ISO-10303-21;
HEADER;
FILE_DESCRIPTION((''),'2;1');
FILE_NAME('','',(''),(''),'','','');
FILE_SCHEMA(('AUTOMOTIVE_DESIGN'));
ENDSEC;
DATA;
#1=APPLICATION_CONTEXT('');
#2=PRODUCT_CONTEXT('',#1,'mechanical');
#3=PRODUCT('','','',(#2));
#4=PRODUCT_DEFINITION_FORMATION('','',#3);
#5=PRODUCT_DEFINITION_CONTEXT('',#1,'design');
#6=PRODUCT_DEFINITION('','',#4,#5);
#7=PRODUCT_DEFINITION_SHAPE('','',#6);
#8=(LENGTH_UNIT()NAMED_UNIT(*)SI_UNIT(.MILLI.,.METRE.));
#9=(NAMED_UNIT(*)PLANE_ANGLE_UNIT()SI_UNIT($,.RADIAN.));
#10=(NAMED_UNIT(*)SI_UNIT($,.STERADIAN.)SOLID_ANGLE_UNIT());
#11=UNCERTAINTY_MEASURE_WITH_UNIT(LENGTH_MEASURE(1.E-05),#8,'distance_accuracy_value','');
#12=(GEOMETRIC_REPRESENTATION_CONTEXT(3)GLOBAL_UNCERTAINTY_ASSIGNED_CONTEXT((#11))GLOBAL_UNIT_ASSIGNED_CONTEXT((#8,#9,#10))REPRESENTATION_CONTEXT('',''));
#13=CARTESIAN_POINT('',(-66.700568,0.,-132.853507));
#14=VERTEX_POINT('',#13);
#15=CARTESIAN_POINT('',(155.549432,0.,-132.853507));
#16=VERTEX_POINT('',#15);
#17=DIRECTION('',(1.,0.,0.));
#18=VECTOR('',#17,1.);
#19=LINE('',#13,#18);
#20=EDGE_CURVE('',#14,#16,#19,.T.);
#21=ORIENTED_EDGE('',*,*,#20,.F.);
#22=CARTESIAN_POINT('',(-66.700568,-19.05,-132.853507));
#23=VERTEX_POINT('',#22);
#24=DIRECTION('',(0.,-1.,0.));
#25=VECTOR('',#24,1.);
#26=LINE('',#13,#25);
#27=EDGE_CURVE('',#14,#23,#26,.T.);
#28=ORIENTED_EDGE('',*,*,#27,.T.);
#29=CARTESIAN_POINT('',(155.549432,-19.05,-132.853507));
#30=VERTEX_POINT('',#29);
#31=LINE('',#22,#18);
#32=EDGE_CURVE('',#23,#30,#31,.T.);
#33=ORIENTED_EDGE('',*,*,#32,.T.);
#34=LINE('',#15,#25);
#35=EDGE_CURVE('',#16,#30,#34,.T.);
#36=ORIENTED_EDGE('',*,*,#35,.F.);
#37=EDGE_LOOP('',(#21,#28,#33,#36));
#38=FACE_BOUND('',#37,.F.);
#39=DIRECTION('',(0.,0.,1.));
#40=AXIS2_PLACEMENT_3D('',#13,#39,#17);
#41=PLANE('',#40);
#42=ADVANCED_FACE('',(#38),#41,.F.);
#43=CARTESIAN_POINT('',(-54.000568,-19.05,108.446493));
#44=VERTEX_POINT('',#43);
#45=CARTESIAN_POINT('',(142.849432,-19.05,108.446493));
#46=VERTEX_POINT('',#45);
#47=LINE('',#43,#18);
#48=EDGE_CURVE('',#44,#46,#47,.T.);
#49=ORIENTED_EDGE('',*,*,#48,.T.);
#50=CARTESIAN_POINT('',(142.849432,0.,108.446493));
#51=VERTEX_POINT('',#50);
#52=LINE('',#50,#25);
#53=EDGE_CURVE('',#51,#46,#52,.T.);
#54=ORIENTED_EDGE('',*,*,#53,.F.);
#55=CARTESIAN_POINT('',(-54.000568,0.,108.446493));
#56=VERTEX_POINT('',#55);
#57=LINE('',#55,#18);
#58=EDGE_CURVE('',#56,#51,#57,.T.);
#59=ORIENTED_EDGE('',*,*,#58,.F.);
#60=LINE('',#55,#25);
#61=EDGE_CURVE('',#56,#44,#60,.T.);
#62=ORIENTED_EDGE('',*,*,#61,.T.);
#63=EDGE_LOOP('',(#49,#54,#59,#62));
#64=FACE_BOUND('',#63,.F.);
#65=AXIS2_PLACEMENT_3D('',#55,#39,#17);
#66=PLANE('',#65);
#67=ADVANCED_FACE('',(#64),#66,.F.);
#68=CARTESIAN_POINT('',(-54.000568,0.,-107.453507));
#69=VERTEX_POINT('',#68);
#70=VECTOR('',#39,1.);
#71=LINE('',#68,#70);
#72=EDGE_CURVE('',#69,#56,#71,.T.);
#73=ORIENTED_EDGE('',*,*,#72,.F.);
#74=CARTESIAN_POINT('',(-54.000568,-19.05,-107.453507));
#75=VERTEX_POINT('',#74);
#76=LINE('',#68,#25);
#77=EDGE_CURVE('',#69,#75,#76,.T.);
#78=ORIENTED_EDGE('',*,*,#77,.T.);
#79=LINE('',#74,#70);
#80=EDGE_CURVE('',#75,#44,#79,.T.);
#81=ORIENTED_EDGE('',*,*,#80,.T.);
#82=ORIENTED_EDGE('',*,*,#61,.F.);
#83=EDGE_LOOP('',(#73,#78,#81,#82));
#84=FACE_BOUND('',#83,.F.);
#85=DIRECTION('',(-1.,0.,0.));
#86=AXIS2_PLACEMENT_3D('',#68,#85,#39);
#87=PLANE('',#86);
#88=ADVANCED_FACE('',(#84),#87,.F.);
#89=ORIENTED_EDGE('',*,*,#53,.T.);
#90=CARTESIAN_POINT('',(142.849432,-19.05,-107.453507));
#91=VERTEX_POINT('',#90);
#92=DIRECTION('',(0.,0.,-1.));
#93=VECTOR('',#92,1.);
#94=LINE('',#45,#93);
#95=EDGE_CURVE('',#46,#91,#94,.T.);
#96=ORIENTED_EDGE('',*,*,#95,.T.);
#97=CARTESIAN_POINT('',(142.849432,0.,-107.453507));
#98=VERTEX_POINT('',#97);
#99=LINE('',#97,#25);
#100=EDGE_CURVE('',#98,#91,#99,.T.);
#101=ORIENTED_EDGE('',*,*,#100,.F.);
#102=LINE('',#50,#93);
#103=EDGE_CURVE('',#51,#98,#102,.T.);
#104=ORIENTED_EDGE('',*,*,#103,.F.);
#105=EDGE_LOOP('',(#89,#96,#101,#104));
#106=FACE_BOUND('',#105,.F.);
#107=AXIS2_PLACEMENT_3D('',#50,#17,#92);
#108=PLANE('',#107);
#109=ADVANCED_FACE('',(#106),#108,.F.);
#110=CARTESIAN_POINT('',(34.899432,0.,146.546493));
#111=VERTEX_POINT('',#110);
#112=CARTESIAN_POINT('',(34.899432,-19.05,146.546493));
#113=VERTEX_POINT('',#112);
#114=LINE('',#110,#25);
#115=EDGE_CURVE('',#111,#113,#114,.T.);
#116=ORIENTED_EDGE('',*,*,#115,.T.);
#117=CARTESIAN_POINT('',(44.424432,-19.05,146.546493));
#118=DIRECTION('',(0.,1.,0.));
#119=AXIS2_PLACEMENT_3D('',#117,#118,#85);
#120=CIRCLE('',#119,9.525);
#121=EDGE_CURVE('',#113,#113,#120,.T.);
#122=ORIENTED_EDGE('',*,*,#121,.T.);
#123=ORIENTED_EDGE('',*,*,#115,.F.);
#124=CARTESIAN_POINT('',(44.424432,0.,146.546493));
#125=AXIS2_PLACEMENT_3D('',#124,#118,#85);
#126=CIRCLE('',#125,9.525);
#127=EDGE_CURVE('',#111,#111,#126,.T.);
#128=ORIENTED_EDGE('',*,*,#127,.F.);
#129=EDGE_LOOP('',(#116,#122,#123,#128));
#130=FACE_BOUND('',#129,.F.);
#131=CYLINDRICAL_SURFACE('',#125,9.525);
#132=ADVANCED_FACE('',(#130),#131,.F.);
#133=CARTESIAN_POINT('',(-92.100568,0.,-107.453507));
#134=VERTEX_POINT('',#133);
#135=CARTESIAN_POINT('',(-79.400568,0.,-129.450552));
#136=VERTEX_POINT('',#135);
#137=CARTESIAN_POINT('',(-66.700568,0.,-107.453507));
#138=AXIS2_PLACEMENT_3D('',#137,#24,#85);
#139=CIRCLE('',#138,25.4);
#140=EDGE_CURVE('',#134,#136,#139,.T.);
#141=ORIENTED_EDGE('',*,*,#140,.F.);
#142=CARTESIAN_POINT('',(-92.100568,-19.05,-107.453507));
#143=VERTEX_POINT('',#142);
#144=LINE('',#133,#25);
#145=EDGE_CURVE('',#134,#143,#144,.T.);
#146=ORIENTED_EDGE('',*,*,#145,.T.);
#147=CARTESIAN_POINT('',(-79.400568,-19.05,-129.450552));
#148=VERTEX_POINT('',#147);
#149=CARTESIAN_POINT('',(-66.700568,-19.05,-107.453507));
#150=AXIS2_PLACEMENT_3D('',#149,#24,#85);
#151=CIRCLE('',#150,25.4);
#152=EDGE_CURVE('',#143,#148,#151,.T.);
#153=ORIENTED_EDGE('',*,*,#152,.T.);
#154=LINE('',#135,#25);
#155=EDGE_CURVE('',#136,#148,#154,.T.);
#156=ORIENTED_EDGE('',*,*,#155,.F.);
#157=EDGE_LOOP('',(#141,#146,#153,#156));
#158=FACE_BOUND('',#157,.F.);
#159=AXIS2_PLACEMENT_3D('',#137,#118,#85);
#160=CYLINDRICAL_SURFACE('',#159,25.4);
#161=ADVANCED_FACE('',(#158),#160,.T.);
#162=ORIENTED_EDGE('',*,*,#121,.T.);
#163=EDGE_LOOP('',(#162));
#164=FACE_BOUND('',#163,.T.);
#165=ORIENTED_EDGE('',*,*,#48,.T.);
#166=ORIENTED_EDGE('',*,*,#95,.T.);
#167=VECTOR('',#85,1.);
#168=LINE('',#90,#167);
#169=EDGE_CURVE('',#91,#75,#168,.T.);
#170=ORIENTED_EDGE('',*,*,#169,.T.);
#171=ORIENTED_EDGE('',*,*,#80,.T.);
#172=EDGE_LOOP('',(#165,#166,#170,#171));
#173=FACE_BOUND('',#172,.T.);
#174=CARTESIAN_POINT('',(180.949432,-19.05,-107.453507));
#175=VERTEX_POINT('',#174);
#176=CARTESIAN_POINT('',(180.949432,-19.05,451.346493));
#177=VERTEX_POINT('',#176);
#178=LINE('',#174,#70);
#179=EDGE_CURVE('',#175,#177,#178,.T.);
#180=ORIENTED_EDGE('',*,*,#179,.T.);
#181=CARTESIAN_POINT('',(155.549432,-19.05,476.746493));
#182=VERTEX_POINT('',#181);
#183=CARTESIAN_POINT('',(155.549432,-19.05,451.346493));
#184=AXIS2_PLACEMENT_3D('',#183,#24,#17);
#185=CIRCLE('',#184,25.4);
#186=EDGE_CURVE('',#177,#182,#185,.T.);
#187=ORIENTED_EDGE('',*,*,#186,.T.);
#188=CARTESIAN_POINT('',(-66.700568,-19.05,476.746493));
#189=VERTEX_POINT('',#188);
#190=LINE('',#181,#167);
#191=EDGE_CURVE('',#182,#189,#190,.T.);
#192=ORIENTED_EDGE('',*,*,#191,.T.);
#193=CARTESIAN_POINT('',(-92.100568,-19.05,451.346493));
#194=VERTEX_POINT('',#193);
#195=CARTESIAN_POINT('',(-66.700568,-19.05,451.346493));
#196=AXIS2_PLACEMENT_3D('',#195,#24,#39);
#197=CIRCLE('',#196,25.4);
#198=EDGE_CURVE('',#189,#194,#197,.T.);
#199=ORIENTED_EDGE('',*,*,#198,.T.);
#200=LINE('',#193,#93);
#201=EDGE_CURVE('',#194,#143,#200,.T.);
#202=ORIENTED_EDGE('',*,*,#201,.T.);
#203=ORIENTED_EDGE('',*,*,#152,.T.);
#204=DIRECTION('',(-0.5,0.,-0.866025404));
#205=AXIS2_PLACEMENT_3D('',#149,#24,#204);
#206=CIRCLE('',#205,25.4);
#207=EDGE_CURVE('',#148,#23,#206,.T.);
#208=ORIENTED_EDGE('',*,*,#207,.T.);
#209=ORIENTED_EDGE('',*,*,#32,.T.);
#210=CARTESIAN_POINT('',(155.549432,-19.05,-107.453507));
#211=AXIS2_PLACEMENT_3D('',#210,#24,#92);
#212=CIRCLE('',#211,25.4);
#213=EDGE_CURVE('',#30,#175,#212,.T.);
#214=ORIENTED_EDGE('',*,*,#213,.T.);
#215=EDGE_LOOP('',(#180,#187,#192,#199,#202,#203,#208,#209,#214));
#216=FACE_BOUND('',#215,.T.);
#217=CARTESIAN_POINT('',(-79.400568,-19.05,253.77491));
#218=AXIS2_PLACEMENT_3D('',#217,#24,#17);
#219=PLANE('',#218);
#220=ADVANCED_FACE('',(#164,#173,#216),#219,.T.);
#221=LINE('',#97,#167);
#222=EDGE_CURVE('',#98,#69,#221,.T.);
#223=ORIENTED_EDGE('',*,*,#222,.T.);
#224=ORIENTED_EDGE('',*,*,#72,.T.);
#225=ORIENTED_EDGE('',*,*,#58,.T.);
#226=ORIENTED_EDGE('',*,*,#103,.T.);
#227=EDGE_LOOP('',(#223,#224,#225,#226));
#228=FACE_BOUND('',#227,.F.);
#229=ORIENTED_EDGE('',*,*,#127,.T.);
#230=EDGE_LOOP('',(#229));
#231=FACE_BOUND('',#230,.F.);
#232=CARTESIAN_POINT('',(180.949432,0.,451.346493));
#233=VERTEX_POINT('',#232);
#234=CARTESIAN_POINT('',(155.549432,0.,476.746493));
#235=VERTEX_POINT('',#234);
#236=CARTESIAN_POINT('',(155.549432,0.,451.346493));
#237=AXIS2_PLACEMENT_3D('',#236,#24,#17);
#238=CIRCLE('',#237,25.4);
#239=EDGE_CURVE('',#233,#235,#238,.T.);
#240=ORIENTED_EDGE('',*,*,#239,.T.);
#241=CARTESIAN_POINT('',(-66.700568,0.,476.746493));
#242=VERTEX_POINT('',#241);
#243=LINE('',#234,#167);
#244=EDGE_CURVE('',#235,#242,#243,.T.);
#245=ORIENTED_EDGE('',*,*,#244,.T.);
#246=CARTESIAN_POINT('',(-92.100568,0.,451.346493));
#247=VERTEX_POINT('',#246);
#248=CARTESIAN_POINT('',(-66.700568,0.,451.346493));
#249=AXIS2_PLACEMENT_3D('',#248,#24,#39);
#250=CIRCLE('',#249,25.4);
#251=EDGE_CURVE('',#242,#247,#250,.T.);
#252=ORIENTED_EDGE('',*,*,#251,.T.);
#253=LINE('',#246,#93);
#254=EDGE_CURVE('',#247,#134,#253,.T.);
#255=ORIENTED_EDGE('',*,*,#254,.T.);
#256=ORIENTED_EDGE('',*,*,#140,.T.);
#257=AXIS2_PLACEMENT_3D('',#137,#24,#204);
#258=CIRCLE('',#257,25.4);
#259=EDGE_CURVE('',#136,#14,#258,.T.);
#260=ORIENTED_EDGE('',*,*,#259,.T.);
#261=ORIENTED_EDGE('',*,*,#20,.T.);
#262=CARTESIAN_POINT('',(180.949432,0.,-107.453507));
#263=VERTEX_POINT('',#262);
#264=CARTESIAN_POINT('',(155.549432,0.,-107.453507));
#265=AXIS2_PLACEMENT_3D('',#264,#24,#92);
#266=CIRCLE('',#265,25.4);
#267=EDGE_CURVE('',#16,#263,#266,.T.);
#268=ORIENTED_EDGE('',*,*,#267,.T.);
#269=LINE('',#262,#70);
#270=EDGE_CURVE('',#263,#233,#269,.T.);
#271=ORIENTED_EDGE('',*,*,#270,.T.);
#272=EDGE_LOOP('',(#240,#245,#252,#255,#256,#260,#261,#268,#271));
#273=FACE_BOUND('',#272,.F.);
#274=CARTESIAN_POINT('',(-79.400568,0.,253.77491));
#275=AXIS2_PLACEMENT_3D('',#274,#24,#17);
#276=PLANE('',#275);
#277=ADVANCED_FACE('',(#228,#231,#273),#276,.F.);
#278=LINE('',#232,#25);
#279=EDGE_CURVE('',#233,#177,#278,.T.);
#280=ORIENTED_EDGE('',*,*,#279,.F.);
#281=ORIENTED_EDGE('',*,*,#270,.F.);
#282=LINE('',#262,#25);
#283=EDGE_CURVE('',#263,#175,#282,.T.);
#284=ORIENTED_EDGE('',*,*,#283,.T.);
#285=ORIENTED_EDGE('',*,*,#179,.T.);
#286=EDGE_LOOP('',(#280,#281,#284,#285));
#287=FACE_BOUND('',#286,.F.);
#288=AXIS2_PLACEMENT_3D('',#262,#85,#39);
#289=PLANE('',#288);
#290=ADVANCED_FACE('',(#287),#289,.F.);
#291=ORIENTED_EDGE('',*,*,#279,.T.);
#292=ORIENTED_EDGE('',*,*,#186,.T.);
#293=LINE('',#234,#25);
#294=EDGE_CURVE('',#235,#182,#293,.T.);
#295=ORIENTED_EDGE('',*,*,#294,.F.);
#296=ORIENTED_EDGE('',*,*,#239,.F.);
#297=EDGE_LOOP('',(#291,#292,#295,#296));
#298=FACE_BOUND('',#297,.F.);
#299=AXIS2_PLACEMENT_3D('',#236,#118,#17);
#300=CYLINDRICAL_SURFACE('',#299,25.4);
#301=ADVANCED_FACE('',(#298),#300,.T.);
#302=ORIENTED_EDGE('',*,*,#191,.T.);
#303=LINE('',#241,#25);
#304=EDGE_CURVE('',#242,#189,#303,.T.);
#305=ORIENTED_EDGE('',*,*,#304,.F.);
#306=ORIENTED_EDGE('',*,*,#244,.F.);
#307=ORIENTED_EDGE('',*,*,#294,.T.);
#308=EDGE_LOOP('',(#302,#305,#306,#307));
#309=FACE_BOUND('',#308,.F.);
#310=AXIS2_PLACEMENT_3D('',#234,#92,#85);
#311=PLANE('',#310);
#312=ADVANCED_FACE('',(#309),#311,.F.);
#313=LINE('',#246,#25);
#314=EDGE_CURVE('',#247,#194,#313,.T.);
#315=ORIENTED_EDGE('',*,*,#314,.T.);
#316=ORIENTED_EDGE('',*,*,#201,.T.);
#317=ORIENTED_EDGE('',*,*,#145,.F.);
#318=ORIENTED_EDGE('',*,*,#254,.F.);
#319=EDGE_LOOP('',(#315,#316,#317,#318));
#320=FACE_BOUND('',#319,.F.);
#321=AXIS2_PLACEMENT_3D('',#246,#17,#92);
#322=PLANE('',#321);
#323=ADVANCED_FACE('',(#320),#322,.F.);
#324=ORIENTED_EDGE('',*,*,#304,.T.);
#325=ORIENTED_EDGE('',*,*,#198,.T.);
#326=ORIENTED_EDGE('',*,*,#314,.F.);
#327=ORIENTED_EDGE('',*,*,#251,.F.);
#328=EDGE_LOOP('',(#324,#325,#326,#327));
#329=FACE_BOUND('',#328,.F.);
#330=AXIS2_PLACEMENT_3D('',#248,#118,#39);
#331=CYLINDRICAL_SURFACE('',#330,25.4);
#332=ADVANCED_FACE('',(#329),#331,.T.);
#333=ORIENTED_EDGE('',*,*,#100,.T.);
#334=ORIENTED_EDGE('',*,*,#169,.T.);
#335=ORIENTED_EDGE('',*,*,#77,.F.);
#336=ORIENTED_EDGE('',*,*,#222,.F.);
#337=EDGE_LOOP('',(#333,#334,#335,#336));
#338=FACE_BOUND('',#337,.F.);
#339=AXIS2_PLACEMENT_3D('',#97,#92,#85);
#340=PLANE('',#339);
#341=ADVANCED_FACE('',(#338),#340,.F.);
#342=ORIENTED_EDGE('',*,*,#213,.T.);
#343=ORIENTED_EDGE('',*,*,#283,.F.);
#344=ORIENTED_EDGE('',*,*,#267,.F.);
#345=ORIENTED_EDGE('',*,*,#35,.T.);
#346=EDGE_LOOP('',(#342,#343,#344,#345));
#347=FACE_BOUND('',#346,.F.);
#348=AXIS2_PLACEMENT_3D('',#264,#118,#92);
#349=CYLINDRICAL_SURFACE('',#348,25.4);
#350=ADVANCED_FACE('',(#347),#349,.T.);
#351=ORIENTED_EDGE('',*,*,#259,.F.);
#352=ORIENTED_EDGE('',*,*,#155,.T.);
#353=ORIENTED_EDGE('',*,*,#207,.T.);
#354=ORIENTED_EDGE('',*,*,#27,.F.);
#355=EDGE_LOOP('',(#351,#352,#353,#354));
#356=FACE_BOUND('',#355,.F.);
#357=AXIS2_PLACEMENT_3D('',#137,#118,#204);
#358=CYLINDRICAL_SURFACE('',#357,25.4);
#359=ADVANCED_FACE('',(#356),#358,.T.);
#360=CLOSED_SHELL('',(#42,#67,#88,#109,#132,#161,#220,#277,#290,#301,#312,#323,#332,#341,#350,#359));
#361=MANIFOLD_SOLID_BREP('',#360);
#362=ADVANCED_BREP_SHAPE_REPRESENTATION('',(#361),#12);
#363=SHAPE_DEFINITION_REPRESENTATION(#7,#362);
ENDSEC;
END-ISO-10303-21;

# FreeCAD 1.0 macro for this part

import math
import FreeCAD as App
import Part
import Sketcher
Q = App.Units.Quantity


def add_polygon(sketch, points):
    """Adds a closed chain of lines whose ends are joined by coincident constraints."""
    first, n = sketch.GeometryCount, len(points)
    for a, b in zip(points, points[1:] + points[:1]):
        sketch.addGeometry(Part.LineSegment(App.Vector(*a, 0), App.Vector(*b, 0)), False)
    for i in range(n):
        sketch.addConstraint(Sketcher.Constraint("Coincident", first + i, 2, first + (i + 1) % n, 1))

doc = App.newDocument("Part")
body = doc.addObject("PartDesign::Body", "Body")

# Sketch on XZ plane
sketch1 = body.newObject("Sketcher::SketchObject", "Sketch")
sketch1.AttachmentSupport = (doc.getObject("XZ_Plane"), [""])
sketch1.MapMode = "FlatFace"
sketch1.addGeometry(Part.LineSegment(App.Vector(180.949432, -107.453507, 0), App.Vector(180.949432, 451.346493, 0)), False)  # 0
sketch1.addGeometry(Part.ArcOfCircle(Part.Circle(App.Vector(155.549432, 451.346493, 0), App.Vector(0, 0, 1), 25.4), math.radians(0), math.radians(90)), False)  # 1
sketch1.addGeometry(Part.LineSegment(App.Vector(155.549432, 476.746493, 0), App.Vector(-66.700568, 476.746493, 0)), False)  # 2
sketch1.addGeometry(Part.ArcOfCircle(Part.Circle(App.Vector(-66.700568, 451.346493, 0), App.Vector(0, 0, 1), 25.4), math.radians(90), math.radians(180)), False)  # 3
sketch1.addGeometry(Part.LineSegment(App.Vector(-92.100568, 451.346493, 0), App.Vector(-92.100568, -107.453507, 0)), False)  # 4
sketch1.addGeometry(Part.ArcOfCircle(Part.Circle(App.Vector(-66.700568, -107.453507, 0), App.Vector(0, 0, 1), 25.4), math.radians(180), math.radians(240)), False)  # 5
sketch1.addGeometry(Part.ArcOfCircle(Part.Circle(App.Vector(-66.700568, -107.453507, 0), App.Vector(0, 0, 1), 25.4), math.radians(-120), math.radians(-90)), False)  # 6
sketch1.addGeometry(Part.LineSegment(App.Vector(-66.700568, -132.853507, 0), App.Vector(155.549432, -132.853507, 0)), False)  # 7
sketch1.addGeometry(Part.ArcOfCircle(Part.Circle(App.Vector(155.549432, -107.453507, 0), App.Vector(0, 0, 1), 25.4), math.radians(-90), math.radians(0)), False)  # 8
add_polygon(sketch1, [(-54.000568, 108.446493), (142.849432, 108.446493), (142.849432, -107.453507), (-54.000568, -107.453507)])  # lines 9-12
sketch1.addGeometry(Part.Circle(App.Vector(44.424432, 146.546493, 0), App.Vector(0, 0, 1), 9.525), False)  # 13
sketch1.addConstraint([
    Sketcher.Constraint("Tangent", 0, 2, 1, 1),
    Sketcher.Constraint("Tangent", 1, 2, 2, 1),
    Sketcher.Constraint("Tangent", 2, 2, 3, 1),
    Sketcher.Constraint("Tangent", 3, 2, 4, 1),
    Sketcher.Constraint("Tangent", 4, 2, 5, 1),
    Sketcher.Constraint("Tangent", 5, 2, 6, 1),
    Sketcher.Constraint("Tangent", 6, 2, 7, 1),
    Sketcher.Constraint("Tangent", 7, 2, 8, 1),
    Sketcher.Constraint("Tangent", 8, 2, 0, 1),
    Sketcher.Constraint("Vertical", 0),
    Sketcher.Constraint("Horizontal", 2),
    Sketcher.Constraint("Vertical", 4),
    Sketcher.Constraint("Horizontal", 7),
    Sketcher.Constraint("Horizontal", 9),
    Sketcher.Constraint("Vertical", 10),
    Sketcher.Constraint("Horizontal", 11),
    Sketcher.Constraint("Vertical", 12),
    Sketcher.Constraint("Equal", 1, 3),
    Sketcher.Constraint("Equal", 3, 5),
    Sketcher.Constraint("Equal", 5, 6),
    Sketcher.Constraint("Equal", 6, 8),
    Sketcher.Constraint("Horizontal", 8, 2, 10, 2),
    Sketcher.Constraint("Radius", 1, Q("1 in")),
    Sketcher.Constraint("Diameter", 13, Q("0.75 in")),
    Sketcher.Constraint("DistanceY", 0, 1, 0, 2, Q("22 in")),
    Sketcher.Constraint("DistanceY", 10, 2, 10, 1, Q("8.5 in")),
    Sketcher.Constraint("DistanceY", 5, 3, 13, 3, Q("10 in")),
    Sketcher.Constraint("DistanceX", 5, 2, 11, 2, Q("1 in")),
    Sketcher.Constraint("DistanceX", 2, 2, 2, 1, Q("8.75 in")),
    Sketcher.Constraint("DistanceX", 9, 1, 9, 2, Q("7.75 in")),
    Sketcher.Constraint("DistanceX", 4, 2, 5, 2, Q("0.5 in")),
    Sketcher.Constraint("DistanceX", 5, 3, 13, 3, Q("4.375 in")),
    Sketcher.Constraint("DistanceX", -1, 1, 1, 3, 155.549432),
    Sketcher.Constraint("DistanceY", -1, 1, 1, 3, 451.346493),
])
pad1 = body.newObject("PartDesign::Pad", "Pad")
pad1.Profile = sketch1
pad1.Length = Q("0.75 in")

doc.recompute()
